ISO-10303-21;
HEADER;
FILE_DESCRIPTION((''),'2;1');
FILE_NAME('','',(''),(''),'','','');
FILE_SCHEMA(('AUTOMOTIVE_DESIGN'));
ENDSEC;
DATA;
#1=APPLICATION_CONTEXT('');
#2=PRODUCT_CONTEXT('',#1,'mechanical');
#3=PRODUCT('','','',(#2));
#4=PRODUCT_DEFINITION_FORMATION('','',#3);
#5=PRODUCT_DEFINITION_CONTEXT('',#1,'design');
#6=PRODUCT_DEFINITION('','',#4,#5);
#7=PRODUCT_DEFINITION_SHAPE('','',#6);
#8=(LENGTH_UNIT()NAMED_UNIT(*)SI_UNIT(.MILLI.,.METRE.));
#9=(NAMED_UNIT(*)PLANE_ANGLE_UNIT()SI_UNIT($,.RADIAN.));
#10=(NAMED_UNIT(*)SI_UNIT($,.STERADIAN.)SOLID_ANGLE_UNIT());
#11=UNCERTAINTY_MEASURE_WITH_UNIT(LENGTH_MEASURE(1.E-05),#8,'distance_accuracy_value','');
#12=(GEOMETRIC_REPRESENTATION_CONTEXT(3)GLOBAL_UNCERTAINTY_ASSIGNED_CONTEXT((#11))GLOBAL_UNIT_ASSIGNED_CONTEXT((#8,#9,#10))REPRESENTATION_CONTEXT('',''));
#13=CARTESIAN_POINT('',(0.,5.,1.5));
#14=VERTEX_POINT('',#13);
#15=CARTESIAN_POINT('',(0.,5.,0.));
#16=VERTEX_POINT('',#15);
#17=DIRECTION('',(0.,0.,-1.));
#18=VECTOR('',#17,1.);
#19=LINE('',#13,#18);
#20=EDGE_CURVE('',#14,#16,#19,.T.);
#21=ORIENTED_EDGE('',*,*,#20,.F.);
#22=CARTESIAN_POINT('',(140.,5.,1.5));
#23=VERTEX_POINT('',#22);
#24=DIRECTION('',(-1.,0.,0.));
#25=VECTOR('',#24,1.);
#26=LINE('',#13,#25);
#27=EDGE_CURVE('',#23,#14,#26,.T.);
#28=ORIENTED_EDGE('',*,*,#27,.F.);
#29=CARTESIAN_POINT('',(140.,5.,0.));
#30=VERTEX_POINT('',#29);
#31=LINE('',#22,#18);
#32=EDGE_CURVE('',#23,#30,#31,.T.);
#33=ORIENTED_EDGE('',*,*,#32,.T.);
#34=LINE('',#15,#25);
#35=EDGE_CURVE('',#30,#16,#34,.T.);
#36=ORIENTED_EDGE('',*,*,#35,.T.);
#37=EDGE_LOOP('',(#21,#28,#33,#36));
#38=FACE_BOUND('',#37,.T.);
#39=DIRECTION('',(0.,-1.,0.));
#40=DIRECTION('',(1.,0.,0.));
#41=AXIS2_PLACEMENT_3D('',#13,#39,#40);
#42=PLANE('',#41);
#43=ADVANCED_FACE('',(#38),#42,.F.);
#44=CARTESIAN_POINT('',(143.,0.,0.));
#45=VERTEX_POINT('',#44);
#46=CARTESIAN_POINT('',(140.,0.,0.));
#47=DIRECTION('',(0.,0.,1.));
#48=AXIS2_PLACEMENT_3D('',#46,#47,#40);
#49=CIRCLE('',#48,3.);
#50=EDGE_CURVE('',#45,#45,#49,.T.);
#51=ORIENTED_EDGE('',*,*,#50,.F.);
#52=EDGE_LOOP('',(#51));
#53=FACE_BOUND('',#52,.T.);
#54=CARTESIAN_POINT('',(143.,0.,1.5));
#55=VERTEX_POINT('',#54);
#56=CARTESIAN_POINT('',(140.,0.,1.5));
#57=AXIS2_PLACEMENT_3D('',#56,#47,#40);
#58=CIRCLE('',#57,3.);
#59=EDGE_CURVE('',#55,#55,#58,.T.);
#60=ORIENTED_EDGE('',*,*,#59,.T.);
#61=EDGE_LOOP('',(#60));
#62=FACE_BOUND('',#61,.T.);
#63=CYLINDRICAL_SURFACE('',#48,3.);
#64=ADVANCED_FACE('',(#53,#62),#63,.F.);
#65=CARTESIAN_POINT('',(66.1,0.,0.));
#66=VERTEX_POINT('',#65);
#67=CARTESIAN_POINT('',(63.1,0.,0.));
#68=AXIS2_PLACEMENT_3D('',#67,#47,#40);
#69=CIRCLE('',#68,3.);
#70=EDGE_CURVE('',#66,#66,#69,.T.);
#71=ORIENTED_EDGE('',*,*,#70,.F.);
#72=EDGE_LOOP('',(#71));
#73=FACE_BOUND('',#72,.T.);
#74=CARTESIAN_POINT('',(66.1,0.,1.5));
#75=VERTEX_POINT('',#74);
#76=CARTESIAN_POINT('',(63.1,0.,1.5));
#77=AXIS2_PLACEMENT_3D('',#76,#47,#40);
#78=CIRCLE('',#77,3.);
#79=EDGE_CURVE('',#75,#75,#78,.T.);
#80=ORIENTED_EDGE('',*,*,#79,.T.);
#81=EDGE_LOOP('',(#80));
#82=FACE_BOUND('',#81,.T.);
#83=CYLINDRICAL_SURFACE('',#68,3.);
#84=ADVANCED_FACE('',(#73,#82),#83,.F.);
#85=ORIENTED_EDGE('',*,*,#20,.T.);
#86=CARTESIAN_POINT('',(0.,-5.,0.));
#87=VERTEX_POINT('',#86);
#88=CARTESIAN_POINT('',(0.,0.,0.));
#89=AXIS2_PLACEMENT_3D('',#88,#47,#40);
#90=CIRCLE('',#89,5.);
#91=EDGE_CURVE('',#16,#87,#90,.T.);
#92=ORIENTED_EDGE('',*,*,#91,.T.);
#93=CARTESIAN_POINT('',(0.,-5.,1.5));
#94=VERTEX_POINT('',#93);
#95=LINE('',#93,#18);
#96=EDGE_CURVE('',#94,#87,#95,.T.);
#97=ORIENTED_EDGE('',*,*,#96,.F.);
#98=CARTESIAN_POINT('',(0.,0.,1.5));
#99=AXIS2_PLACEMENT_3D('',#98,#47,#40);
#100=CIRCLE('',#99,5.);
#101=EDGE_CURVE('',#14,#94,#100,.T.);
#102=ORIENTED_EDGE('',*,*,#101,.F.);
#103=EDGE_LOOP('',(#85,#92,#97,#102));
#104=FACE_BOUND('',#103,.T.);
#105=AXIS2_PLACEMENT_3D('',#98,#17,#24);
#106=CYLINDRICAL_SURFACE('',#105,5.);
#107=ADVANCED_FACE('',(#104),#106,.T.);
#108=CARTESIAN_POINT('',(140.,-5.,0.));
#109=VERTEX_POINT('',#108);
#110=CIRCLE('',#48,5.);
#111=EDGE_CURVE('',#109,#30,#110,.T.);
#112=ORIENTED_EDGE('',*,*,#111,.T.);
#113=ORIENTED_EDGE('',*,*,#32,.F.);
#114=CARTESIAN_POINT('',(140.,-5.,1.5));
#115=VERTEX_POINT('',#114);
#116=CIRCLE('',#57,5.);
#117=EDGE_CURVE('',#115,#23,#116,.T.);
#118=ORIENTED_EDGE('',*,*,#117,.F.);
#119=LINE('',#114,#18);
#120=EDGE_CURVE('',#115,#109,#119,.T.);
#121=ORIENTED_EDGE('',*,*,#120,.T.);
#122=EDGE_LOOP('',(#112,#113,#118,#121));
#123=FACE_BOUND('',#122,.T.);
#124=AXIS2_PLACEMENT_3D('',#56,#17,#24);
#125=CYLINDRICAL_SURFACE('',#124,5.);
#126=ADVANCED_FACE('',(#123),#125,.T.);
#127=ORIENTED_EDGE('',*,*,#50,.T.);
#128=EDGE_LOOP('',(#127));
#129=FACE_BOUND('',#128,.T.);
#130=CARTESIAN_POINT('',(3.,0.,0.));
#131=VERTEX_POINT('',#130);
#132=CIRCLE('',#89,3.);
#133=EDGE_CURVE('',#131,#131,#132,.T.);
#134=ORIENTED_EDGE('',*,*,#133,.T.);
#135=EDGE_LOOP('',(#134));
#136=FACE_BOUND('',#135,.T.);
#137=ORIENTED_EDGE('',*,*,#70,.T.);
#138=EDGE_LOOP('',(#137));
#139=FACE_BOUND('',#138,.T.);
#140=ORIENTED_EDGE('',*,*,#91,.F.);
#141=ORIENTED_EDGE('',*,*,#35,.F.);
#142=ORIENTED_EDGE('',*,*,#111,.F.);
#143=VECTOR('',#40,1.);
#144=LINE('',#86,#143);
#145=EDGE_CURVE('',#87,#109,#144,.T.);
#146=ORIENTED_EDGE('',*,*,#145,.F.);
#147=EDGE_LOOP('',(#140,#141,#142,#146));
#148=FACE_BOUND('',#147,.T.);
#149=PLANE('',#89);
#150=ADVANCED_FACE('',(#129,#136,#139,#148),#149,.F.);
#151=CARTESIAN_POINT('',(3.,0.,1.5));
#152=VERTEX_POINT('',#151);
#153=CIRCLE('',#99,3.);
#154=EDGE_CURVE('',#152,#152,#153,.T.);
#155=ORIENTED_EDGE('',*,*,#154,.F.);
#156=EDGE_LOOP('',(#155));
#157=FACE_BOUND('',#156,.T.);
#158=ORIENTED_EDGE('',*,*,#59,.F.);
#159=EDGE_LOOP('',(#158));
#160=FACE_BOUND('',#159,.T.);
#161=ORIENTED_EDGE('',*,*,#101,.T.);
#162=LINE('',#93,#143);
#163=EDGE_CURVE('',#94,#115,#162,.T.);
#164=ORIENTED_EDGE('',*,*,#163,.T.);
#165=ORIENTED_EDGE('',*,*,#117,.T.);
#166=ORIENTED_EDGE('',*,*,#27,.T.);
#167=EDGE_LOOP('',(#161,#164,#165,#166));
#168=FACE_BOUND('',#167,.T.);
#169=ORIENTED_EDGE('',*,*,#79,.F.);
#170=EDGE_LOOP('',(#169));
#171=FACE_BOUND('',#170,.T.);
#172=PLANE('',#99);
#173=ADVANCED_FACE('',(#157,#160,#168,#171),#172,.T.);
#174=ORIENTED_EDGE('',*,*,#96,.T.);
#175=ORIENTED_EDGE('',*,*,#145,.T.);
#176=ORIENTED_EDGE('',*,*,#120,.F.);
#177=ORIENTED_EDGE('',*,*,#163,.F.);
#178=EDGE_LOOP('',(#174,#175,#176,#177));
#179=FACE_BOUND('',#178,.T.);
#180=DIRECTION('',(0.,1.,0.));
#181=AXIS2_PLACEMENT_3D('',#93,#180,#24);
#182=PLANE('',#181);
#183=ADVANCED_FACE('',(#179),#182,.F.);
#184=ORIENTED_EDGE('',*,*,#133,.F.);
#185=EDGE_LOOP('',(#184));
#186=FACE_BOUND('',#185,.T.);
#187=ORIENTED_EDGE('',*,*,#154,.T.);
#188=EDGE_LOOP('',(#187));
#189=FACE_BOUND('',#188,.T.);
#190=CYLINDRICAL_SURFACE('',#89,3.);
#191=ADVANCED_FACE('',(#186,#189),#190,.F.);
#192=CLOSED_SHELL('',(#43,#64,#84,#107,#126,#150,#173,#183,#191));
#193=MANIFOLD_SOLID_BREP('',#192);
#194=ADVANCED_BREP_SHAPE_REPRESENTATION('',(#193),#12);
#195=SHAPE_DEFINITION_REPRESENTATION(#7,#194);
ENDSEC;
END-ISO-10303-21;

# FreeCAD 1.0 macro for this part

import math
import FreeCAD as App
import Part
import Sketcher

doc = App.newDocument("Part")
body = doc.addObject("PartDesign::Body", "Body")

# Sketch on XY plane
sketch1 = body.newObject("Sketcher::SketchObject", "Sketch")
sketch1.AttachmentSupport = (doc.getObject("XY_Plane"), [""])
sketch1.MapMode = "FlatFace"
sketch1.addGeometry(Part.LineSegment(App.Vector(140, 5, 0), App.Vector(0, 5, 0)), False)
sketch1.addGeometry(Part.ArcOfCircle(Part.Circle(App.Vector(0, 0, 0), App.Vector(0, 0, 1), 5), math.radians(90), math.radians(270)), False)
sketch1.addGeometry(Part.LineSegment(App.Vector(0, -5, 0), App.Vector(140, -5, 0)), False)
sketch1.addGeometry(Part.ArcOfCircle(Part.Circle(App.Vector(140, 0, 0), App.Vector(0, 0, 1), 5), math.radians(-90), math.radians(90)), False)
sketch1.addConstraint(Sketcher.Constraint("Tangent", 0, 2, 1, 1))
sketch1.addConstraint(Sketcher.Constraint("Tangent", 1, 2, 2, 1))
sketch1.addConstraint(Sketcher.Constraint("Tangent", 2, 2, 3, 1))
sketch1.addConstraint(Sketcher.Constraint("Tangent", 3, 2, 0, 1))
sketch1.addConstraint(Sketcher.Constraint("Horizontal", 0))
sketch1.addConstraint(Sketcher.Constraint("Horizontal", 2))
sketch1.addConstraint(Sketcher.Constraint("Coincident", 1, 3, -1, 1))
sketch1.addConstraint(Sketcher.Constraint("Radius", 1, 5.0))
sketch1.addConstraint(Sketcher.Constraint("DistanceX", 0, 2, 0, 1, 140.0))
pad1 = body.newObject("PartDesign::Pad", "Pad")
pad1.Profile = sketch1
pad1.Length = 1.5

# Sketch on XY plane
sketch2 = body.newObject("Sketcher::SketchObject", "Sketch001")
sketch2.AttachmentSupport = (doc.getObject("XY_Plane"), [""])
sketch2.MapMode = "FlatFace"
sketch2.AttachmentOffset = App.Placement(App.Vector(0, 0, 1.5), App.Rotation())
sketch2.addGeometry(Part.Circle(App.Vector(0, 0, 0), App.Vector(0, 0, 1), 3), False)
sketch2.addGeometry(Part.Circle(App.Vector(140, 0, 0), App.Vector(0, 0, 1), 3), False)
sketch2.addGeometry(Part.Circle(App.Vector(63.1, 0, 0), App.Vector(0, 0, 1), 3), False)
sketch2.addConstraint(Sketcher.Constraint("Coincident", 0, 3, -1, 1))
sketch2.addConstraint(Sketcher.Constraint("Equal", 0, 1))
sketch2.addConstraint(Sketcher.Constraint("Equal", 1, 2))
sketch2.addConstraint(Sketcher.Constraint("PointOnObject", 1, 3, -1))
sketch2.addConstraint(Sketcher.Constraint("PointOnObject", 2, 3, -1))
sketch2.addConstraint(Sketcher.Constraint("Diameter", 0, 6.0))
sketch2.addConstraint(Sketcher.Constraint("DistanceX", -1, 1, 1, 3, 140.0))
sketch2.addConstraint(Sketcher.Constraint("DistanceX", -1, 1, 2, 3, 63.1))
pocket1 = body.newObject("PartDesign::Pocket", "Pocket")
pocket1.Profile = sketch2
pocket1.Type = "ThroughAll"

doc.recompute()
